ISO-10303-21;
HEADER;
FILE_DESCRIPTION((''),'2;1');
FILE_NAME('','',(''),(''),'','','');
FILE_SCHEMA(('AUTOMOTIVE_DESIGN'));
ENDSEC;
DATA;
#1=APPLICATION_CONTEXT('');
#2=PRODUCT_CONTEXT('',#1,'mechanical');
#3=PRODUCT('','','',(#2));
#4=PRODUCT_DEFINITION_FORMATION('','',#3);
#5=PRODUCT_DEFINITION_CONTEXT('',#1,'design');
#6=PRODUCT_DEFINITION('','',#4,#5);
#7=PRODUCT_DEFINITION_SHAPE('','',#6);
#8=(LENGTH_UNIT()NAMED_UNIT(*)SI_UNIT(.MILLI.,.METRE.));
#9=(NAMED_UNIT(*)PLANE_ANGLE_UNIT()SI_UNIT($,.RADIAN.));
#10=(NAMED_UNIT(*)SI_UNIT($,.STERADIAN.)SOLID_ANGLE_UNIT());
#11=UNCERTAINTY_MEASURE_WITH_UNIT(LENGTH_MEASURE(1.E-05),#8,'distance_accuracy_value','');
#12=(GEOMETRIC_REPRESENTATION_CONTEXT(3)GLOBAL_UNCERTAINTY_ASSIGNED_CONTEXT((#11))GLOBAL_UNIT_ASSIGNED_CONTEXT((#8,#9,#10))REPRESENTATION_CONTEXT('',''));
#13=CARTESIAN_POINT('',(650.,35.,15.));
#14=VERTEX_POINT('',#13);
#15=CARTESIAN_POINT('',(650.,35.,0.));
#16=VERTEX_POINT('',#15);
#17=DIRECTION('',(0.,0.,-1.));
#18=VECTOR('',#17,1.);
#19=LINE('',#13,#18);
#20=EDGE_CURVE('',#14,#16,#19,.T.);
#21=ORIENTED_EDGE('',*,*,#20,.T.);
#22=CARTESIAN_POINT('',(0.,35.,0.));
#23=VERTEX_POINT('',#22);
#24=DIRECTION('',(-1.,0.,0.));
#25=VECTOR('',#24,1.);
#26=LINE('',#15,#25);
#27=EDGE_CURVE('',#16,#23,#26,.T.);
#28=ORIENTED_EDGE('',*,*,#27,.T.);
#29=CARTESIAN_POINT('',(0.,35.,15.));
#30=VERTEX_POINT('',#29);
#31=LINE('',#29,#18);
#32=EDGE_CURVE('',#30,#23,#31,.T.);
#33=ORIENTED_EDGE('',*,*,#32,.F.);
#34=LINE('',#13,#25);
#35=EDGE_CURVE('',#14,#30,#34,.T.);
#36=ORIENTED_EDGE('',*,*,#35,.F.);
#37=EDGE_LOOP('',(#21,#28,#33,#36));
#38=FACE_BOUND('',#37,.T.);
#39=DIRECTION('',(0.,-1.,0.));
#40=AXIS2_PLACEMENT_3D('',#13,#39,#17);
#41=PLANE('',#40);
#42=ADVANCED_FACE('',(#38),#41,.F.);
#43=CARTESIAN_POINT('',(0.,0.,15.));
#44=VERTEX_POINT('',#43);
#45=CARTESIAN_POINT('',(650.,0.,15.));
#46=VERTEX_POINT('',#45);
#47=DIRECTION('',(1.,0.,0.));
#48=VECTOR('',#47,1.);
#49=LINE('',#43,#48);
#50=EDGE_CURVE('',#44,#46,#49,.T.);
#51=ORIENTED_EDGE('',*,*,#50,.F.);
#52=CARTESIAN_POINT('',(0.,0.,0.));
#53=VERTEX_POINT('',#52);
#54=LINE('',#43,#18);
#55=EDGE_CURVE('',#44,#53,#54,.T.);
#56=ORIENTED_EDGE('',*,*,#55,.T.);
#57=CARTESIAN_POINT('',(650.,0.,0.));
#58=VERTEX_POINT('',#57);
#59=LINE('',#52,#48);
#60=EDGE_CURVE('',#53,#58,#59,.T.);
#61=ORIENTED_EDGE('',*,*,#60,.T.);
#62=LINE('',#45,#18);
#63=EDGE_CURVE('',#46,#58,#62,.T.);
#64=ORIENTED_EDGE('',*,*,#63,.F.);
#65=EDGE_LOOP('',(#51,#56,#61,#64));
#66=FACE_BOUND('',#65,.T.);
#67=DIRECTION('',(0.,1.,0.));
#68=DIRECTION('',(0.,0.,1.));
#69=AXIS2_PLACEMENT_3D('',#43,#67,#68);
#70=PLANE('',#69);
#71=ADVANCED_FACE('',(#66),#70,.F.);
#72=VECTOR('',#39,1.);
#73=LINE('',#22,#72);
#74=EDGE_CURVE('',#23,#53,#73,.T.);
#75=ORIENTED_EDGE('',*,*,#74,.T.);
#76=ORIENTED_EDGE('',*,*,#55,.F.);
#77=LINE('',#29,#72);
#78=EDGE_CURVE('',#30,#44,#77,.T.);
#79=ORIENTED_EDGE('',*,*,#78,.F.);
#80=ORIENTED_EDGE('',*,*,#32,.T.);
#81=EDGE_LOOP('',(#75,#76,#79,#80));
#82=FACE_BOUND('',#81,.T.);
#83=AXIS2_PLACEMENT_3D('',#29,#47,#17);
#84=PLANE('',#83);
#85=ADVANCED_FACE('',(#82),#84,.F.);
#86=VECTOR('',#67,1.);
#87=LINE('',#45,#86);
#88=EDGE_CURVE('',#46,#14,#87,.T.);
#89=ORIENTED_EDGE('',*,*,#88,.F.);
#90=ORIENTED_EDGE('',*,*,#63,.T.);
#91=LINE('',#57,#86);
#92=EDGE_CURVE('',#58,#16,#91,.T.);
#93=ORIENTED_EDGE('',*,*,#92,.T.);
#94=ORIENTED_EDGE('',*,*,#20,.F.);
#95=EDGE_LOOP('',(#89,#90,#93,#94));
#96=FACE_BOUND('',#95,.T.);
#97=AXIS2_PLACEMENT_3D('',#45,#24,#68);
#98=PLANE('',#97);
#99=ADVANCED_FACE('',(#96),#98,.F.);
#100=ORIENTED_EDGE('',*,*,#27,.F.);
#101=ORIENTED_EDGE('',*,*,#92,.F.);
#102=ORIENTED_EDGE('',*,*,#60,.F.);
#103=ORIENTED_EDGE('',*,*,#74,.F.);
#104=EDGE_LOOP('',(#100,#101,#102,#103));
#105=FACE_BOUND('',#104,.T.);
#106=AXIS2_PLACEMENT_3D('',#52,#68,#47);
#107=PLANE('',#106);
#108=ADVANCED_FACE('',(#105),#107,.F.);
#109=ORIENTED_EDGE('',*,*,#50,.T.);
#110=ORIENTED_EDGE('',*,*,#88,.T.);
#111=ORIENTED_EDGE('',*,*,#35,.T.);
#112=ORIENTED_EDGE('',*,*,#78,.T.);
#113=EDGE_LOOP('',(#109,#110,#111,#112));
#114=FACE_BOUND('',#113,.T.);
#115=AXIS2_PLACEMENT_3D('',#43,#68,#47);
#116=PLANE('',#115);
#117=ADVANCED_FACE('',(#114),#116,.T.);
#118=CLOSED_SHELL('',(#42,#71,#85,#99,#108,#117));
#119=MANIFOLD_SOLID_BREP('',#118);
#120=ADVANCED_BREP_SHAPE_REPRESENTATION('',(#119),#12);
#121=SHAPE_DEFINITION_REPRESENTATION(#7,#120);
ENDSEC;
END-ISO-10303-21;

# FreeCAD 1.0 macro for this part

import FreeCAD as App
import Part
import Sketcher

V = App.Vector
Q = App.Units.Quantity

doc = App.newDocument("Part")
body = doc.addObject("PartDesign::Body", "Body")

# Sketch on XY plane
sketch1 = body.newObject("Sketcher::SketchObject", "Sketch")
sketch1.AttachmentSupport = (doc.getObject("XY_Plane"), [""])
sketch1.MapMode = "FlatFace"
sketch1.addGeometry(Part.LineSegment(V(0, 35, 0), V(0, 0, 0)), False)
sketch1.addGeometry(Part.LineSegment(V(0, 0, 0), V(650, 0, 0)), False)
sketch1.addGeometry(Part.LineSegment(V(650, 0, 0), V(650, 35, 0)), False)
sketch1.addGeometry(Part.LineSegment(V(650, 35, 0), V(0, 35, 0)), False)
sketch1.addConstraint(Sketcher.Constraint("Coincident", 0, 2, 1, 1))
sketch1.addConstraint(Sketcher.Constraint("Coincident", 1, 2, 2, 1))
sketch1.addConstraint(Sketcher.Constraint("Coincident", 2, 2, 3, 1))
sketch1.addConstraint(Sketcher.Constraint("Coincident", 3, 2, 0, 1))
sketch1.addConstraint(Sketcher.Constraint("Vertical", 0))
sketch1.addConstraint(Sketcher.Constraint("Horizontal", 1))
sketch1.addConstraint(Sketcher.Constraint("Vertical", 2))
sketch1.addConstraint(Sketcher.Constraint("Horizontal", 3))
sketch1.addConstraint(Sketcher.Constraint("Coincident", 0, 2, -1, 1))
sketch1.addConstraint(Sketcher.Constraint("DistanceX", 1, 1, 1, 2, Q("650 mm")))
sketch1.addConstraint(Sketcher.Constraint("DistanceY", 0, 2, 0, 1, Q("35 mm")))
pad1 = body.newObject("PartDesign::Pad", "Pad")
pad1.Profile = sketch1
pad1.Length = 15

doc.recompute()
